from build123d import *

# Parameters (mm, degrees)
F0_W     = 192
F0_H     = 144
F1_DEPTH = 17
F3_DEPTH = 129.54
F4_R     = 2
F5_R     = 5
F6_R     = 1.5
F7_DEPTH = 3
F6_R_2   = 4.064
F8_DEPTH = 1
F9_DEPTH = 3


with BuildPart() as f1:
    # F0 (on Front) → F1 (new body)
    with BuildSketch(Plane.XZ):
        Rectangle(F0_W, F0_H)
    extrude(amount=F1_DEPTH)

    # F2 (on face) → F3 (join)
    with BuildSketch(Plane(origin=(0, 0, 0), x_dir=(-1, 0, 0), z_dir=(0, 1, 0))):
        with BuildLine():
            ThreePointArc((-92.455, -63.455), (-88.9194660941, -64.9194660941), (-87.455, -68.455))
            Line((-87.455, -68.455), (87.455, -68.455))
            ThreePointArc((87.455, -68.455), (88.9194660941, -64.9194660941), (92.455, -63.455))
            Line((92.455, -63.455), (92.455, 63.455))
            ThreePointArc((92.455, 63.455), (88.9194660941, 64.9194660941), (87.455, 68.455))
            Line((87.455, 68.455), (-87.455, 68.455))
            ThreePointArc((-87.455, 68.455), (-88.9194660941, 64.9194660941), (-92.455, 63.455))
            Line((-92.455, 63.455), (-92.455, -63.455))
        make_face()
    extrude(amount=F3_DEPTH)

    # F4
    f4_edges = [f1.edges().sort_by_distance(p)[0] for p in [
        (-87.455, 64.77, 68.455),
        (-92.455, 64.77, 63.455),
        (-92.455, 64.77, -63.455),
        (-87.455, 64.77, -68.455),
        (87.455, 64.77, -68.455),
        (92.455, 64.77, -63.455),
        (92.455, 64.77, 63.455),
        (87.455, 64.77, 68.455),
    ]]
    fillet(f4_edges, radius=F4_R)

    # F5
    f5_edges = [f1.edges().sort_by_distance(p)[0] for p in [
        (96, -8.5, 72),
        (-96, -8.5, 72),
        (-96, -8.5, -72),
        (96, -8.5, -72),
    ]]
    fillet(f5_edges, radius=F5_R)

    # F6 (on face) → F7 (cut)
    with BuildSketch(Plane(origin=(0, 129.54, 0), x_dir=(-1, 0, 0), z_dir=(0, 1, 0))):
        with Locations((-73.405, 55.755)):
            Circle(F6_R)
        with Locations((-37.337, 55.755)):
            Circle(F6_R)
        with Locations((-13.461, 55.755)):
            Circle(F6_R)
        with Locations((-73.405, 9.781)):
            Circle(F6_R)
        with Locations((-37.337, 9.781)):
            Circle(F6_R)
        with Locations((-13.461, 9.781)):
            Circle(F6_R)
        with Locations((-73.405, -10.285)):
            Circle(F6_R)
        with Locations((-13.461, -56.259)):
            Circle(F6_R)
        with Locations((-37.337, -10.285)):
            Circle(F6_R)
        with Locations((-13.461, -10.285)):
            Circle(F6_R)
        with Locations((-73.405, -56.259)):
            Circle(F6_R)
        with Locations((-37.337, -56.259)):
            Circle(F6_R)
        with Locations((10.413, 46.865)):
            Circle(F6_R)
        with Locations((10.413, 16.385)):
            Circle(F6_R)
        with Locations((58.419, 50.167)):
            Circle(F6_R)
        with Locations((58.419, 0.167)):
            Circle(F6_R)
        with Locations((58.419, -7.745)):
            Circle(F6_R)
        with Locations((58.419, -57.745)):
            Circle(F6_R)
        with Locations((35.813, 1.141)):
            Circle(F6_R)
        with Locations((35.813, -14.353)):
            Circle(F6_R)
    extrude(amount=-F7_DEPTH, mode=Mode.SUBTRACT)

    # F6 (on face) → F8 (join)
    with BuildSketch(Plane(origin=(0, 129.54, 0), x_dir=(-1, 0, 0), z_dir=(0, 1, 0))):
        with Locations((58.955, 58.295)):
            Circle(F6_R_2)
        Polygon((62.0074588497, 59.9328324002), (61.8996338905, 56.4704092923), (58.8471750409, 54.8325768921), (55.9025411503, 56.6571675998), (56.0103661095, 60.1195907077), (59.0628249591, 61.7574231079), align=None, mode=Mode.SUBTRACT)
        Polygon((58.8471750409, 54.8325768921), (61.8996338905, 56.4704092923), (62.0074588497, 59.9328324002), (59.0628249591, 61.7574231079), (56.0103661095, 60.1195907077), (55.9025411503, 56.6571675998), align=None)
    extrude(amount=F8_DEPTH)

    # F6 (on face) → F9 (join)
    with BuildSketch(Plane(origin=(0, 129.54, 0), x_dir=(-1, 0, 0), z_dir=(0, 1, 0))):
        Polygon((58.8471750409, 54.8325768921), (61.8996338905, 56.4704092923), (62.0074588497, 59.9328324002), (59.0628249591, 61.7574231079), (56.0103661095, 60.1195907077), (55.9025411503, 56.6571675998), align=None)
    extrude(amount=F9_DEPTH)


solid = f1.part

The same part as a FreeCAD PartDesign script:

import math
import FreeCAD as App
import Part
import Sketcher

V = App.Vector


def edges_at(feature, points):
    """Names of the edges that pass closest to the given points."""
    edges = feature.Shape.Edges
    near = lambda p: min(range(len(edges)), key=lambda i: edges[i].distToShape(Part.Vertex(*p))[0])
    return sorted({f"Edge{near(p) + 1}" for p in points})

doc = App.newDocument("Part")
body = doc.addObject("PartDesign::Body", "Body")

sketch1 = body.newObject("Sketcher::SketchObject", "Sketch")
sketch1.AttachmentSupport = (doc.getObject("XZ_Plane"), [""])
sketch1.MapMode = "FlatFace"
sketch1.addGeometry([
    Part.LineSegment(V(-96, 72, 0), V(-96, -72, 0)),
    Part.LineSegment(V(-96, -72, 0), V(96, -72, 0)),
    Part.LineSegment(V(96, -72, 0), V(96, 72, 0)),
    Part.LineSegment(V(96, 72, 0), V(-96, 72, 0)),
], False)
sketch1.addConstraint([
    Sketcher.Constraint("Coincident", 0, 2, 1, 1),
    Sketcher.Constraint("Coincident", 1, 2, 2, 1),
    Sketcher.Constraint("Coincident", 2, 2, 3, 1),
    Sketcher.Constraint("Coincident", 3, 2, 0, 1),
    Sketcher.Constraint("Vertical", 0),
    Sketcher.Constraint("Horizontal", 1),
    Sketcher.Constraint("Vertical", 2),
    Sketcher.Constraint("Horizontal", 3),
    Sketcher.Constraint("Symmetric", 0, 2, 2, 2, -1, 1),
    Sketcher.Constraint("DistanceX", 1, 1, 1, 2, 192.0),
    Sketcher.Constraint("DistanceY", 0, 2, 0, 1, 144.0),
])
pad1 = body.newObject("PartDesign::Pad", "Pad")
pad1.Profile = sketch1
pad1.Length = 17

sketch2 = body.newObject("Sketcher::SketchObject", "Sketch001")
sketch2.AttachmentSupport = (doc.getObject("XZ_Plane"), [""])
sketch2.MapMode = "FlatFace"
sketch2.addGeometry([
    Part.ArcOfCircle(Part.Circle(V(92, -68, 0), V(0, 0, 1), 5), math.radians(90), math.radians(180)),
    Part.LineSegment(V(87, -68, 0), V(-87, -68, 0)),
    Part.ArcOfCircle(Part.Circle(V(-92, -68, 0), V(0, 0, 1), 5), math.radians(0), math.radians(90)),
    Part.LineSegment(V(-92, -63, 0), V(-92, 63, 0)),
    Part.ArcOfCircle(Part.Circle(V(-92, 68, 0), V(0, 0, 1), 5), math.radians(-90), math.radians(0)),
    Part.LineSegment(V(-87, 68, 0), V(87, 68, 0)),
    Part.ArcOfCircle(Part.Circle(V(92, 68, 0), V(0, 0, 1), 5), math.radians(180), math.radians(270)),
    Part.LineSegment(V(92, 63, 0), V(92, -63, 0)),
], False)
sketch2.addConstraint([
    Sketcher.Constraint("Coincident", 0, 2, 1, 1),
    Sketcher.Constraint("Coincident", 1, 2, 2, 1),
    Sketcher.Constraint("Coincident", 2, 2, 3, 1),
    Sketcher.Constraint("Coincident", 3, 2, 4, 1),
    Sketcher.Constraint("Coincident", 4, 2, 5, 1),
    Sketcher.Constraint("Coincident", 5, 2, 6, 1),
    Sketcher.Constraint("Coincident", 6, 2, 7, 1),
    Sketcher.Constraint("Coincident", 7, 2, 0, 1),
    Sketcher.Constraint("Horizontal", 1),
    Sketcher.Constraint("Vertical", 3),
    Sketcher.Constraint("Horizontal", 5),
    Sketcher.Constraint("Vertical", 7),
    Sketcher.Constraint("Equal", 0, 2),
    Sketcher.Constraint("Equal", 2, 4),
    Sketcher.Constraint("Equal", 4, 6),
    Sketcher.Constraint("Symmetric", 0, 3, 4, 3, -1, 1),
    Sketcher.Constraint("Symmetric", 2, 3, 6, 3, -1, 1),
    Sketcher.Constraint("Symmetric", 0, 3, 2, 3, -2),
    Sketcher.Constraint("Horizontal", 2, 3, 0, 2),
    Sketcher.Constraint("Horizontal", 6, 3, 4, 2),
    Sketcher.Constraint("Vertical", 4, 3, 2, 2),
    Sketcher.Constraint("Vertical", 0, 3, 6, 2),
    Sketcher.Constraint("Radius", 0, 5.0),
    Sketcher.Constraint("DistanceX", 1, 2, 1, 1, 174.91),
    Sketcher.Constraint("DistanceY", 3, 1, 3, 2, 126.91),
])
pad2 = body.newObject("PartDesign::Pad", "Pad001")
pad2.Profile = sketch2
pad2.Length = 129.54
pad2.Reversed = True
doc.recompute()

fillet = body.newObject("PartDesign::Fillet", "Fillet")
fillet.Base = (pad2, edges_at(pad2, [
    (-87.455, 64.77, 68.455),
    (-92.455, 64.77, 63.455),
    (-92.455, 64.77, -63.455),
    (-87.455, 64.77, -68.455),
    (87.455, 64.77, -68.455),
    (92.455, 64.77, -63.455),
    (92.455, 64.77, 63.455),
    (87.455, 64.77, 68.455),
]))
fillet.Radius = 2
doc.recompute()

fillet2 = body.newObject("PartDesign::Fillet", "Fillet001")
fillet2.Base = (fillet, edges_at(fillet, [
    (96, -8.5, 72),
    (-96, -8.5, 72),
    (-96, -8.5, -72),
    (96, -8.5, -72),
]))
fillet2.Radius = 5

sketch3 = body.newObject("Sketcher::SketchObject", "Sketch002")
sketch3.AttachmentSupport = (doc.getObject("XZ_Plane"), [""])
sketch3.MapMode = "FlatFace"
sketch3.AttachmentOffset = App.Placement(V(0, 0, -129.54), App.Rotation())
sketch3.addGeometry([
    Part.Circle(V(73.4, 55.8, 0), V(0, 0, 1), 1.5),
    Part.Circle(V(37.3, 55.8, 0), V(0, 0, 1), 1.5),
    Part.Circle(V(13.5, 55.8, 0), V(0, 0, 1), 1.5),
    Part.Circle(V(73.4, 9.8, 0), V(0, 0, 1), 1.5),
    Part.Circle(V(37.3, 9.8, 0), V(0, 0, 1), 1.5),
    Part.Circle(V(13.5, 9.8, 0), V(0, 0, 1), 1.5),
    Part.Circle(V(73.4, -10.3, 0), V(0, 0, 1), 1.5),
    Part.Circle(V(13.5, -56.3, 0), V(0, 0, 1), 1.5),
    Part.Circle(V(37.3, -10.3, 0), V(0, 0, 1), 1.5),
    Part.Circle(V(13.5, -10.3, 0), V(0, 0, 1), 1.5),
    Part.Circle(V(73.4, -56.3, 0), V(0, 0, 1), 1.5),
    Part.Circle(V(37.3, -56.3, 0), V(0, 0, 1), 1.5),
    Part.Circle(V(-10.4, 46.9, 0), V(0, 0, 1), 1.5),
    Part.Circle(V(-10.4, 16.4, 0), V(0, 0, 1), 1.5),
    Part.Circle(V(-58.4, 50.2, 0), V(0, 0, 1), 1.5),
    Part.Circle(V(-58.4, 0.2, 0), V(0, 0, 1), 1.5),
    Part.Circle(V(-58.4, -7.7, 0), V(0, 0, 1), 1.5),
    Part.Circle(V(-58.4, -57.7, 0), V(0, 0, 1), 1.5),
    Part.Circle(V(-35.8, 1.1, 0), V(0, 0, 1), 1.5),
    Part.Circle(V(-35.8, -14.4, 0), V(0, 0, 1), 1.5),
], False)
sketch3.addConstraint([
    Sketcher.Constraint("Equal", 0, 1),
    Sketcher.Constraint("Equal", 1, 2),
    Sketcher.Constraint("Equal", 2, 3),
    Sketcher.Constraint("Equal", 3, 4),
    Sketcher.Constraint("Equal", 4, 5),
    Sketcher.Constraint("Equal", 5, 6),
    Sketcher.Constraint("Equal", 6, 7),
    Sketcher.Constraint("Equal", 7, 8),
    Sketcher.Constraint("Equal", 8, 9),
    Sketcher.Constraint("Equal", 9, 10),
    Sketcher.Constraint("Equal", 10, 11),
    Sketcher.Constraint("Equal", 11, 12),
    Sketcher.Constraint("Equal", 12, 13),
    Sketcher.Constraint("Equal", 13, 14),
    Sketcher.Constraint("Equal", 14, 15),
    Sketcher.Constraint("Equal", 15, 16),
    Sketcher.Constraint("Equal", 16, 17),
    Sketcher.Constraint("Equal", 17, 18),
    Sketcher.Constraint("Equal", 18, 19),
    Sketcher.Constraint("Horizontal", 0, 3, 1, 3),
    Sketcher.Constraint("Horizontal", 1, 3, 2, 3),
    Sketcher.Constraint("Horizontal", 3, 3, 4, 3),
    Sketcher.Constraint("Horizontal", 4, 3, 5, 3),
    Sketcher.Constraint("Horizontal", 6, 3, 8, 3),
    Sketcher.Constraint("Horizontal", 8, 3, 9, 3),
    Sketcher.Constraint("Horizontal", 7, 3, 10, 3),
    Sketcher.Constraint("Horizontal", 10, 3, 11, 3),
    Sketcher.Constraint("Vertical", 0, 3, 3, 3),
    Sketcher.Constraint("Vertical", 1, 3, 4, 3),
    Sketcher.Constraint("Vertical", 2, 3, 5, 3),
    Sketcher.Constraint("Vertical", 3, 3, 6, 3),
    Sketcher.Constraint("Vertical", 5, 3, 7, 3),
    Sketcher.Constraint("Vertical", 4, 3, 8, 3),
    Sketcher.Constraint("Vertical", 7, 3, 9, 3),
    Sketcher.Constraint("Vertical", 6, 3, 10, 3),
    Sketcher.Constraint("Vertical", 8, 3, 11, 3),
    Sketcher.Constraint("Vertical", 12, 3, 13, 3),
    Sketcher.Constraint("Vertical", 14, 3, 15, 3),
    Sketcher.Constraint("Vertical", 15, 3, 16, 3),
    Sketcher.Constraint("Vertical", 16, 3, 17, 3),
    Sketcher.Constraint("Vertical", 18, 3, 19, 3),
    Sketcher.Constraint("Diameter", 0, 3.0),
    Sketcher.Constraint("DistanceY", 15, 3, 14, 3, 50.0),
    Sketcher.Constraint("DistanceY", 17, 3, 16, 3, 50.0),
    Sketcher.Constraint("DistanceX", 18, 3, 13, 3, 25.4),
    Sketcher.Constraint("DistanceY", 6, 3, 0, 3, 66.04),
    Sketcher.Constraint("DistanceY", 7, 3, 5, 3, 66.04),
    Sketcher.Constraint("DistanceY", 12, 3, 2, 3, 8.89),
    Sketcher.Constraint("DistanceX", 12, 3, 1, 3, 47.75),
    Sketcher.Constraint("DistanceY", 13, 3, 12, 3, 30.48),
    Sketcher.Constraint("DistanceX", 14, 3, 2, 3, 71.88),
    Sketcher.Constraint("DistanceY", 16, 3, 13, 3, 24.13),
    Sketcher.Constraint("DistanceY", 18, 3, 5, 3, 8.64),
    Sketcher.Constraint("DistanceY", 19, 3, 15, 3, 14.52),
    Sketcher.Constraint("DistanceX", -1, 1, 0, 3, 73.405),
    Sketcher.Constraint("DistanceY", -1, 1, 0, 3, 55.755),
    Sketcher.Constraint("DistanceX", -1, 1, 1, 3, 37.337),
    Sketcher.Constraint("DistanceX", -1, 1, 2, 3, 13.461),
    Sketcher.Constraint("DistanceY", -1, 1, 3, 3, 9.781),
    Sketcher.Constraint("DistanceY", -1, 1, 14, 3, 50.167),
])
pocket1 = body.newObject("PartDesign::Pocket", "Pocket")
pocket1.Profile = sketch3
pocket1.Length = 3
pocket1.Reversed = True

sketch4 = body.newObject("Sketcher::SketchObject", "Sketch003")
sketch4.AttachmentSupport = (doc.getObject("XZ_Plane"), [""])
sketch4.MapMode = "FlatFace"
sketch4.AttachmentOffset = App.Placement(V(0, 0, -129.54), App.Rotation())
sketch4.addGeometry(Part.Circle(V(-59, 58.3, 0), V(0, 0, 1), 4.1), False)
sketch4.addConstraint([
    Sketcher.Constraint("Diameter", 0, 8.128),
    Sketcher.Constraint("DistanceX", 0, 3, -1, 1, 58.955),
    Sketcher.Constraint("DistanceY", -1, 1, 0, 3, 58.295),
])
pad3 = body.newObject("PartDesign::Pad", "Pad002")
pad3.Profile = sketch4
pad3.Length = 1
pad3.Reversed = True

sketch5 = body.newObject("Sketcher::SketchObject", "Sketch004")
sketch5.AttachmentSupport = (doc.getObject("XZ_Plane"), [""])
sketch5.MapMode = "FlatFace"
sketch5.AttachmentOffset = App.Placement(V(0, 0, -129.54), App.Rotation())
sketch5.addGeometry([
    Part.LineSegment(V(-58.8, 54.8, 0), V(-61.9, 56.5, 0)),
    Part.LineSegment(V(-61.9, 56.5, 0), V(-62, 59.9, 0)),
    Part.LineSegment(V(-62, 59.9, 0), V(-59.1, 61.8, 0)),
    Part.LineSegment(V(-59.1, 61.8, 0), V(-56, 60.1, 0)),
    Part.LineSegment(V(-56, 60.1, 0), V(-55.9, 56.7, 0)),
    Part.LineSegment(V(-55.9, 56.7, 0), V(-58.8, 54.8, 0)),
], False)
sketch5.addConstraint([
    Sketcher.Constraint("Coincident", 0, 2, 1, 1),
    Sketcher.Constraint("Coincident", 1, 2, 2, 1),
    Sketcher.Constraint("Coincident", 2, 2, 3, 1),
    Sketcher.Constraint("Coincident", 3, 2, 4, 1),
    Sketcher.Constraint("Coincident", 4, 2, 5, 1),
    Sketcher.Constraint("Coincident", 5, 2, 0, 1),
    Sketcher.Constraint("Parallel", 0, 3),
    Sketcher.Constraint("Parallel", 1, 4),
    Sketcher.Constraint("Parallel", 2, 5),
    Sketcher.Constraint("Equal", 0, 1),
    Sketcher.Constraint("Equal", 1, 2),
    Sketcher.Constraint("Equal", 2, 3),
    Sketcher.Constraint("Distance", 0, 3.464102),
    Sketcher.Constraint("DistanceY", -1, 1, 0, 2, 56.470409),
    Sketcher.Constraint("DistanceX", 1, 2, -1, 1, 62.007459),
    Sketcher.Constraint("DistanceY", -1, 1, 3, 2, 60.119591),
    Sketcher.Constraint("DistanceX", 4, 2, -1, 1, 55.902541),
    Sketcher.Constraint("DistanceY", 1, 2, 2, 2, 1.824591),
])
pad4 = body.newObject("PartDesign::Pad", "Pad003")
pad4.Profile = sketch5
pad4.Length = 3
pad4.Reversed = True

doc.recompute()
